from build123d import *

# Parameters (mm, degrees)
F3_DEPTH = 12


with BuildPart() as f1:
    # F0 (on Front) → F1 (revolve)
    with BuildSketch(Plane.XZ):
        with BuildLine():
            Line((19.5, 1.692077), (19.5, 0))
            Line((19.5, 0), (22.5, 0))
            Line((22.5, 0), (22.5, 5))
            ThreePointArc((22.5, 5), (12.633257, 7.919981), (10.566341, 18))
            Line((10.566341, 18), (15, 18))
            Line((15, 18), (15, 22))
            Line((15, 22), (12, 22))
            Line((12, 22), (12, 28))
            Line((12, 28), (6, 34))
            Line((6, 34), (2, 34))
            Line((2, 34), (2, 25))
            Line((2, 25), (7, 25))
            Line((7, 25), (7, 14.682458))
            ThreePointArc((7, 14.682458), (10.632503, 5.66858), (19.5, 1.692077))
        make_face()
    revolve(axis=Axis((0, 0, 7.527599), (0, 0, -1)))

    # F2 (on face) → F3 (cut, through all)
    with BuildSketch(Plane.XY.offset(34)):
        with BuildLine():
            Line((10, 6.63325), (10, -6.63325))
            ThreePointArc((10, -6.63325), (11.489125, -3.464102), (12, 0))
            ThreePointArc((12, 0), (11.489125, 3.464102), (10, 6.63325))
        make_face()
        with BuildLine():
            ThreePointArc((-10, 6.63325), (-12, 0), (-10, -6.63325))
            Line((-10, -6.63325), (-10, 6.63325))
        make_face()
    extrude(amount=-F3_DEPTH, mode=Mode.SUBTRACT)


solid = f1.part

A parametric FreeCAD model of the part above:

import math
import FreeCAD as App
import Part
import Sketcher
Q = App.Units.Quantity

doc = App.newDocument("Part")
body = doc.addObject("PartDesign::Body", "Body")

# Sketch on XZ plane
sketch1 = body.newObject("Sketcher::SketchObject", "Sketch")
sketch1.AttachmentSupport = (doc.getObject("XZ_Plane"), [""])
sketch1.MapMode = "FlatFace"
sketch1.addGeometry(Part.LineSegment(App.Vector(19.5, 1.7, 0), App.Vector(19.5, 0, 0)), False)
sketch1.addGeometry(Part.LineSegment(App.Vector(19.5, 0, 0), App.Vector(22.5, 0, 0)), False)
sketch1.addGeometry(Part.LineSegment(App.Vector(22.5, 0, 0), App.Vector(22.5, 5, 0)), False)
sketch1.addGeometry(Part.ArcOfCircle(Part.Circle(App.Vector(20, 14.7, 0), App.Vector(0, 0, 1), 10), math.radians(161), math.radians(284)), False)
sketch1.addGeometry(Part.LineSegment(App.Vector(10.6, 18, 0), App.Vector(15, 18, 0)), False)
sketch1.addGeometry(Part.LineSegment(App.Vector(15, 18, 0), App.Vector(15, 22, 0)), False)
sketch1.addGeometry(Part.LineSegment(App.Vector(15, 22, 0), App.Vector(12, 22, 0)), False)
sketch1.addGeometry(Part.LineSegment(App.Vector(12, 22, 0), App.Vector(12, 28, 0)), False)
sketch1.addGeometry(Part.LineSegment(App.Vector(12, 28, 0), App.Vector(6, 34, 0)), False)
sketch1.addGeometry(Part.LineSegment(App.Vector(6, 34, 0), App.Vector(2, 34, 0)), False)
sketch1.addGeometry(Part.LineSegment(App.Vector(2, 34, 0), App.Vector(2, 25, 0)), False)
sketch1.addGeometry(Part.LineSegment(App.Vector(2, 25, 0), App.Vector(7, 25, 0)), False)
sketch1.addGeometry(Part.LineSegment(App.Vector(7, 25, 0), App.Vector(7, 14.7, 0)), False)
sketch1.addGeometry(Part.ArcOfCircle(Part.Circle(App.Vector(20, 14.7, 0), App.Vector(0, 0, 1), 13), math.radians(-180), math.radians(-92)), False)
sketch1.addConstraint(Sketcher.Constraint("Coincident", 0, 2, 1, 1))
sketch1.addConstraint(Sketcher.Constraint("Coincident", 1, 2, 2, 1))
sketch1.addConstraint(Sketcher.Constraint("Coincident", 2, 2, 3, 2))
sketch1.addConstraint(Sketcher.Constraint("Coincident", 3, 1, 4, 1))
sketch1.addConstraint(Sketcher.Constraint("Coincident", 4, 2, 5, 1))
sketch1.addConstraint(Sketcher.Constraint("Coincident", 5, 2, 6, 1))
sketch1.addConstraint(Sketcher.Constraint("Coincident", 6, 2, 7, 1))
sketch1.addConstraint(Sketcher.Constraint("Coincident", 7, 2, 8, 1))
sketch1.addConstraint(Sketcher.Constraint("Coincident", 8, 2, 9, 1))
sketch1.addConstraint(Sketcher.Constraint("Coincident", 9, 2, 10, 1))
sketch1.addConstraint(Sketcher.Constraint("Coincident", 10, 2, 11, 1))
sketch1.addConstraint(Sketcher.Constraint("Coincident", 11, 2, 12, 1))
sketch1.addConstraint(Sketcher.Constraint("Tangent", 12, 2, 13, 1))
sketch1.addConstraint(Sketcher.Constraint("Coincident", 13, 2, 0, 1))
sketch1.addConstraint(Sketcher.Constraint("Vertical", 0))
sketch1.addConstraint(Sketcher.Constraint("Horizontal", 1))
sketch1.addConstraint(Sketcher.Constraint("Vertical", 2))
sketch1.addConstraint(Sketcher.Constraint("Horizontal", 4))
sketch1.addConstraint(Sketcher.Constraint("Vertical", 5))
sketch1.addConstraint(Sketcher.Constraint("Horizontal", 6))
sketch1.addConstraint(Sketcher.Constraint("Vertical", 7))
sketch1.addConstraint(Sketcher.Constraint("Horizontal", 9))
sketch1.addConstraint(Sketcher.Constraint("Vertical", 10))
sketch1.addConstraint(Sketcher.Constraint("Horizontal", 11))
sketch1.addConstraint(Sketcher.Constraint("Vertical", 12))
sketch1.addConstraint(Sketcher.Constraint("Coincident", 13, 3, 3, 3))
sketch1.addConstraint(Sketcher.Constraint("PointOnObject", 0, 2, -1))
sketch1.addConstraint(Sketcher.Constraint("Equal", 1, 6))
sketch1.addConstraint(Sketcher.Constraint("Equal", 11, 2))
sketch1.addConstraint(Sketcher.Constraint("Equal", 9, 5))
sketch1.addConstraint(Sketcher.Constraint("Radius", 3, 10.0))
sketch1.addConstraint(Sketcher.Constraint("Radius", 13, 13.0))
sketch1.addConstraint(Sketcher.Constraint("DistanceX", 1, 1, 1, 2, 3.0))
sketch1.addConstraint(Sketcher.Constraint("DistanceX", 9, 2, 9, 1, 4.0))
sketch1.addConstraint(Sketcher.Constraint("DistanceX", 11, 1, 11, 2, 5.0))
sketch1.addConstraint(Sketcher.Constraint("DistanceY", 7, 1, 7, 2, 6.0))
sketch1.addConstraint(Sketcher.Constraint("DistanceY", 10, 2, 10, 1, 9.0))
sketch1.addConstraint(Sketcher.Constraint("Angle", 8, Q("135 deg")))
sketch1.addConstraint(Sketcher.Constraint("DistanceX", -1, 1, 3, 3, 20.0))
sketch1.addConstraint(Sketcher.Constraint("DistanceY", -1, 1, 3, 1, 18.0))
sketch1.addConstraint(Sketcher.Constraint("DistanceX", -1, 1, 4, 2, 15.0))
sketch1.addConstraint(Sketcher.Constraint("DistanceX", -1, 1, 0, 2, 19.5))
revolution = body.newObject("PartDesign::Revolution", "Revolution")
revolution.Profile = sketch1
revolution.ReferenceAxis = (sketch1, ["V_Axis"])
revolution.Angle = 360

# Sketch on XY plane
sketch2 = body.newObject("Sketcher::SketchObject", "Sketch001")
sketch2.AttachmentSupport = (doc.getObject("XY_Plane"), [""])
sketch2.MapMode = "FlatFace"
sketch2.AttachmentOffset = App.Placement(App.Vector(0, 0, 34), App.Rotation())
sketch2.addGeometry(Part.LineSegment(App.Vector(10, 7, 0), App.Vector(10, -7, 0)), False)
sketch2.addGeometry(Part.ArcOfCircle(Part.Circle(App.Vector(0, 0, 0), App.Vector(0, 0, 1), 12), math.radians(-34), math.radians(0)), False)
sketch2.addGeometry(Part.ArcOfCircle(Part.Circle(App.Vector(0, 0, 0), App.Vector(0, 0, 1), 12), math.radians(0), math.radians(34)), False)
sketch2.addGeometry(Part.ArcOfCircle(Part.Circle(App.Vector(0, 0, 0), App.Vector(0, 0, 1), 12), math.radians(146), math.radians(214)), False)
sketch2.addGeometry(Part.LineSegment(App.Vector(-10, -7, 0), App.Vector(-10, 7, 0)), False)
sketch2.addConstraint(Sketcher.Constraint("Coincident", 0, 2, 1, 1))
sketch2.addConstraint(Sketcher.Constraint("Tangent", 1, 2, 2, 1))
sketch2.addConstraint(Sketcher.Constraint("Coincident", 2, 2, 0, 1))
sketch2.addConstraint(Sketcher.Constraint("Coincident", 3, 1, 4, 2))
sketch2.addConstraint(Sketcher.Constraint("Coincident", 4, 1, 3, 2))
sketch2.addConstraint(Sketcher.Constraint("Vertical", 0))
sketch2.addConstraint(Sketcher.Constraint("Vertical", 4))
sketch2.addConstraint(Sketcher.Constraint("Coincident", 1, 3, -1, 1))
sketch2.addConstraint(Sketcher.Constraint("Coincident", 3, 3, -1, 1))
sketch2.addConstraint(Sketcher.Constraint("Equal", 1, 2))
sketch2.addConstraint(Sketcher.Constraint("Symmetric", 0, 2, 3, 1, -1, 1))
sketch2.addConstraint(Sketcher.Constraint("PointOnObject", 1, 2, -1))
sketch2.addConstraint(Sketcher.Constraint("Radius", 3, 12.000001))
sketch2.addConstraint(Sketcher.Constraint("DistanceX", -1, 1, 0, 2, 10.0))
pocket1 = body.newObject("PartDesign::Pocket", "Pocket")
pocket1.Profile = sketch2
pocket1.Length = 12

doc.recompute()
